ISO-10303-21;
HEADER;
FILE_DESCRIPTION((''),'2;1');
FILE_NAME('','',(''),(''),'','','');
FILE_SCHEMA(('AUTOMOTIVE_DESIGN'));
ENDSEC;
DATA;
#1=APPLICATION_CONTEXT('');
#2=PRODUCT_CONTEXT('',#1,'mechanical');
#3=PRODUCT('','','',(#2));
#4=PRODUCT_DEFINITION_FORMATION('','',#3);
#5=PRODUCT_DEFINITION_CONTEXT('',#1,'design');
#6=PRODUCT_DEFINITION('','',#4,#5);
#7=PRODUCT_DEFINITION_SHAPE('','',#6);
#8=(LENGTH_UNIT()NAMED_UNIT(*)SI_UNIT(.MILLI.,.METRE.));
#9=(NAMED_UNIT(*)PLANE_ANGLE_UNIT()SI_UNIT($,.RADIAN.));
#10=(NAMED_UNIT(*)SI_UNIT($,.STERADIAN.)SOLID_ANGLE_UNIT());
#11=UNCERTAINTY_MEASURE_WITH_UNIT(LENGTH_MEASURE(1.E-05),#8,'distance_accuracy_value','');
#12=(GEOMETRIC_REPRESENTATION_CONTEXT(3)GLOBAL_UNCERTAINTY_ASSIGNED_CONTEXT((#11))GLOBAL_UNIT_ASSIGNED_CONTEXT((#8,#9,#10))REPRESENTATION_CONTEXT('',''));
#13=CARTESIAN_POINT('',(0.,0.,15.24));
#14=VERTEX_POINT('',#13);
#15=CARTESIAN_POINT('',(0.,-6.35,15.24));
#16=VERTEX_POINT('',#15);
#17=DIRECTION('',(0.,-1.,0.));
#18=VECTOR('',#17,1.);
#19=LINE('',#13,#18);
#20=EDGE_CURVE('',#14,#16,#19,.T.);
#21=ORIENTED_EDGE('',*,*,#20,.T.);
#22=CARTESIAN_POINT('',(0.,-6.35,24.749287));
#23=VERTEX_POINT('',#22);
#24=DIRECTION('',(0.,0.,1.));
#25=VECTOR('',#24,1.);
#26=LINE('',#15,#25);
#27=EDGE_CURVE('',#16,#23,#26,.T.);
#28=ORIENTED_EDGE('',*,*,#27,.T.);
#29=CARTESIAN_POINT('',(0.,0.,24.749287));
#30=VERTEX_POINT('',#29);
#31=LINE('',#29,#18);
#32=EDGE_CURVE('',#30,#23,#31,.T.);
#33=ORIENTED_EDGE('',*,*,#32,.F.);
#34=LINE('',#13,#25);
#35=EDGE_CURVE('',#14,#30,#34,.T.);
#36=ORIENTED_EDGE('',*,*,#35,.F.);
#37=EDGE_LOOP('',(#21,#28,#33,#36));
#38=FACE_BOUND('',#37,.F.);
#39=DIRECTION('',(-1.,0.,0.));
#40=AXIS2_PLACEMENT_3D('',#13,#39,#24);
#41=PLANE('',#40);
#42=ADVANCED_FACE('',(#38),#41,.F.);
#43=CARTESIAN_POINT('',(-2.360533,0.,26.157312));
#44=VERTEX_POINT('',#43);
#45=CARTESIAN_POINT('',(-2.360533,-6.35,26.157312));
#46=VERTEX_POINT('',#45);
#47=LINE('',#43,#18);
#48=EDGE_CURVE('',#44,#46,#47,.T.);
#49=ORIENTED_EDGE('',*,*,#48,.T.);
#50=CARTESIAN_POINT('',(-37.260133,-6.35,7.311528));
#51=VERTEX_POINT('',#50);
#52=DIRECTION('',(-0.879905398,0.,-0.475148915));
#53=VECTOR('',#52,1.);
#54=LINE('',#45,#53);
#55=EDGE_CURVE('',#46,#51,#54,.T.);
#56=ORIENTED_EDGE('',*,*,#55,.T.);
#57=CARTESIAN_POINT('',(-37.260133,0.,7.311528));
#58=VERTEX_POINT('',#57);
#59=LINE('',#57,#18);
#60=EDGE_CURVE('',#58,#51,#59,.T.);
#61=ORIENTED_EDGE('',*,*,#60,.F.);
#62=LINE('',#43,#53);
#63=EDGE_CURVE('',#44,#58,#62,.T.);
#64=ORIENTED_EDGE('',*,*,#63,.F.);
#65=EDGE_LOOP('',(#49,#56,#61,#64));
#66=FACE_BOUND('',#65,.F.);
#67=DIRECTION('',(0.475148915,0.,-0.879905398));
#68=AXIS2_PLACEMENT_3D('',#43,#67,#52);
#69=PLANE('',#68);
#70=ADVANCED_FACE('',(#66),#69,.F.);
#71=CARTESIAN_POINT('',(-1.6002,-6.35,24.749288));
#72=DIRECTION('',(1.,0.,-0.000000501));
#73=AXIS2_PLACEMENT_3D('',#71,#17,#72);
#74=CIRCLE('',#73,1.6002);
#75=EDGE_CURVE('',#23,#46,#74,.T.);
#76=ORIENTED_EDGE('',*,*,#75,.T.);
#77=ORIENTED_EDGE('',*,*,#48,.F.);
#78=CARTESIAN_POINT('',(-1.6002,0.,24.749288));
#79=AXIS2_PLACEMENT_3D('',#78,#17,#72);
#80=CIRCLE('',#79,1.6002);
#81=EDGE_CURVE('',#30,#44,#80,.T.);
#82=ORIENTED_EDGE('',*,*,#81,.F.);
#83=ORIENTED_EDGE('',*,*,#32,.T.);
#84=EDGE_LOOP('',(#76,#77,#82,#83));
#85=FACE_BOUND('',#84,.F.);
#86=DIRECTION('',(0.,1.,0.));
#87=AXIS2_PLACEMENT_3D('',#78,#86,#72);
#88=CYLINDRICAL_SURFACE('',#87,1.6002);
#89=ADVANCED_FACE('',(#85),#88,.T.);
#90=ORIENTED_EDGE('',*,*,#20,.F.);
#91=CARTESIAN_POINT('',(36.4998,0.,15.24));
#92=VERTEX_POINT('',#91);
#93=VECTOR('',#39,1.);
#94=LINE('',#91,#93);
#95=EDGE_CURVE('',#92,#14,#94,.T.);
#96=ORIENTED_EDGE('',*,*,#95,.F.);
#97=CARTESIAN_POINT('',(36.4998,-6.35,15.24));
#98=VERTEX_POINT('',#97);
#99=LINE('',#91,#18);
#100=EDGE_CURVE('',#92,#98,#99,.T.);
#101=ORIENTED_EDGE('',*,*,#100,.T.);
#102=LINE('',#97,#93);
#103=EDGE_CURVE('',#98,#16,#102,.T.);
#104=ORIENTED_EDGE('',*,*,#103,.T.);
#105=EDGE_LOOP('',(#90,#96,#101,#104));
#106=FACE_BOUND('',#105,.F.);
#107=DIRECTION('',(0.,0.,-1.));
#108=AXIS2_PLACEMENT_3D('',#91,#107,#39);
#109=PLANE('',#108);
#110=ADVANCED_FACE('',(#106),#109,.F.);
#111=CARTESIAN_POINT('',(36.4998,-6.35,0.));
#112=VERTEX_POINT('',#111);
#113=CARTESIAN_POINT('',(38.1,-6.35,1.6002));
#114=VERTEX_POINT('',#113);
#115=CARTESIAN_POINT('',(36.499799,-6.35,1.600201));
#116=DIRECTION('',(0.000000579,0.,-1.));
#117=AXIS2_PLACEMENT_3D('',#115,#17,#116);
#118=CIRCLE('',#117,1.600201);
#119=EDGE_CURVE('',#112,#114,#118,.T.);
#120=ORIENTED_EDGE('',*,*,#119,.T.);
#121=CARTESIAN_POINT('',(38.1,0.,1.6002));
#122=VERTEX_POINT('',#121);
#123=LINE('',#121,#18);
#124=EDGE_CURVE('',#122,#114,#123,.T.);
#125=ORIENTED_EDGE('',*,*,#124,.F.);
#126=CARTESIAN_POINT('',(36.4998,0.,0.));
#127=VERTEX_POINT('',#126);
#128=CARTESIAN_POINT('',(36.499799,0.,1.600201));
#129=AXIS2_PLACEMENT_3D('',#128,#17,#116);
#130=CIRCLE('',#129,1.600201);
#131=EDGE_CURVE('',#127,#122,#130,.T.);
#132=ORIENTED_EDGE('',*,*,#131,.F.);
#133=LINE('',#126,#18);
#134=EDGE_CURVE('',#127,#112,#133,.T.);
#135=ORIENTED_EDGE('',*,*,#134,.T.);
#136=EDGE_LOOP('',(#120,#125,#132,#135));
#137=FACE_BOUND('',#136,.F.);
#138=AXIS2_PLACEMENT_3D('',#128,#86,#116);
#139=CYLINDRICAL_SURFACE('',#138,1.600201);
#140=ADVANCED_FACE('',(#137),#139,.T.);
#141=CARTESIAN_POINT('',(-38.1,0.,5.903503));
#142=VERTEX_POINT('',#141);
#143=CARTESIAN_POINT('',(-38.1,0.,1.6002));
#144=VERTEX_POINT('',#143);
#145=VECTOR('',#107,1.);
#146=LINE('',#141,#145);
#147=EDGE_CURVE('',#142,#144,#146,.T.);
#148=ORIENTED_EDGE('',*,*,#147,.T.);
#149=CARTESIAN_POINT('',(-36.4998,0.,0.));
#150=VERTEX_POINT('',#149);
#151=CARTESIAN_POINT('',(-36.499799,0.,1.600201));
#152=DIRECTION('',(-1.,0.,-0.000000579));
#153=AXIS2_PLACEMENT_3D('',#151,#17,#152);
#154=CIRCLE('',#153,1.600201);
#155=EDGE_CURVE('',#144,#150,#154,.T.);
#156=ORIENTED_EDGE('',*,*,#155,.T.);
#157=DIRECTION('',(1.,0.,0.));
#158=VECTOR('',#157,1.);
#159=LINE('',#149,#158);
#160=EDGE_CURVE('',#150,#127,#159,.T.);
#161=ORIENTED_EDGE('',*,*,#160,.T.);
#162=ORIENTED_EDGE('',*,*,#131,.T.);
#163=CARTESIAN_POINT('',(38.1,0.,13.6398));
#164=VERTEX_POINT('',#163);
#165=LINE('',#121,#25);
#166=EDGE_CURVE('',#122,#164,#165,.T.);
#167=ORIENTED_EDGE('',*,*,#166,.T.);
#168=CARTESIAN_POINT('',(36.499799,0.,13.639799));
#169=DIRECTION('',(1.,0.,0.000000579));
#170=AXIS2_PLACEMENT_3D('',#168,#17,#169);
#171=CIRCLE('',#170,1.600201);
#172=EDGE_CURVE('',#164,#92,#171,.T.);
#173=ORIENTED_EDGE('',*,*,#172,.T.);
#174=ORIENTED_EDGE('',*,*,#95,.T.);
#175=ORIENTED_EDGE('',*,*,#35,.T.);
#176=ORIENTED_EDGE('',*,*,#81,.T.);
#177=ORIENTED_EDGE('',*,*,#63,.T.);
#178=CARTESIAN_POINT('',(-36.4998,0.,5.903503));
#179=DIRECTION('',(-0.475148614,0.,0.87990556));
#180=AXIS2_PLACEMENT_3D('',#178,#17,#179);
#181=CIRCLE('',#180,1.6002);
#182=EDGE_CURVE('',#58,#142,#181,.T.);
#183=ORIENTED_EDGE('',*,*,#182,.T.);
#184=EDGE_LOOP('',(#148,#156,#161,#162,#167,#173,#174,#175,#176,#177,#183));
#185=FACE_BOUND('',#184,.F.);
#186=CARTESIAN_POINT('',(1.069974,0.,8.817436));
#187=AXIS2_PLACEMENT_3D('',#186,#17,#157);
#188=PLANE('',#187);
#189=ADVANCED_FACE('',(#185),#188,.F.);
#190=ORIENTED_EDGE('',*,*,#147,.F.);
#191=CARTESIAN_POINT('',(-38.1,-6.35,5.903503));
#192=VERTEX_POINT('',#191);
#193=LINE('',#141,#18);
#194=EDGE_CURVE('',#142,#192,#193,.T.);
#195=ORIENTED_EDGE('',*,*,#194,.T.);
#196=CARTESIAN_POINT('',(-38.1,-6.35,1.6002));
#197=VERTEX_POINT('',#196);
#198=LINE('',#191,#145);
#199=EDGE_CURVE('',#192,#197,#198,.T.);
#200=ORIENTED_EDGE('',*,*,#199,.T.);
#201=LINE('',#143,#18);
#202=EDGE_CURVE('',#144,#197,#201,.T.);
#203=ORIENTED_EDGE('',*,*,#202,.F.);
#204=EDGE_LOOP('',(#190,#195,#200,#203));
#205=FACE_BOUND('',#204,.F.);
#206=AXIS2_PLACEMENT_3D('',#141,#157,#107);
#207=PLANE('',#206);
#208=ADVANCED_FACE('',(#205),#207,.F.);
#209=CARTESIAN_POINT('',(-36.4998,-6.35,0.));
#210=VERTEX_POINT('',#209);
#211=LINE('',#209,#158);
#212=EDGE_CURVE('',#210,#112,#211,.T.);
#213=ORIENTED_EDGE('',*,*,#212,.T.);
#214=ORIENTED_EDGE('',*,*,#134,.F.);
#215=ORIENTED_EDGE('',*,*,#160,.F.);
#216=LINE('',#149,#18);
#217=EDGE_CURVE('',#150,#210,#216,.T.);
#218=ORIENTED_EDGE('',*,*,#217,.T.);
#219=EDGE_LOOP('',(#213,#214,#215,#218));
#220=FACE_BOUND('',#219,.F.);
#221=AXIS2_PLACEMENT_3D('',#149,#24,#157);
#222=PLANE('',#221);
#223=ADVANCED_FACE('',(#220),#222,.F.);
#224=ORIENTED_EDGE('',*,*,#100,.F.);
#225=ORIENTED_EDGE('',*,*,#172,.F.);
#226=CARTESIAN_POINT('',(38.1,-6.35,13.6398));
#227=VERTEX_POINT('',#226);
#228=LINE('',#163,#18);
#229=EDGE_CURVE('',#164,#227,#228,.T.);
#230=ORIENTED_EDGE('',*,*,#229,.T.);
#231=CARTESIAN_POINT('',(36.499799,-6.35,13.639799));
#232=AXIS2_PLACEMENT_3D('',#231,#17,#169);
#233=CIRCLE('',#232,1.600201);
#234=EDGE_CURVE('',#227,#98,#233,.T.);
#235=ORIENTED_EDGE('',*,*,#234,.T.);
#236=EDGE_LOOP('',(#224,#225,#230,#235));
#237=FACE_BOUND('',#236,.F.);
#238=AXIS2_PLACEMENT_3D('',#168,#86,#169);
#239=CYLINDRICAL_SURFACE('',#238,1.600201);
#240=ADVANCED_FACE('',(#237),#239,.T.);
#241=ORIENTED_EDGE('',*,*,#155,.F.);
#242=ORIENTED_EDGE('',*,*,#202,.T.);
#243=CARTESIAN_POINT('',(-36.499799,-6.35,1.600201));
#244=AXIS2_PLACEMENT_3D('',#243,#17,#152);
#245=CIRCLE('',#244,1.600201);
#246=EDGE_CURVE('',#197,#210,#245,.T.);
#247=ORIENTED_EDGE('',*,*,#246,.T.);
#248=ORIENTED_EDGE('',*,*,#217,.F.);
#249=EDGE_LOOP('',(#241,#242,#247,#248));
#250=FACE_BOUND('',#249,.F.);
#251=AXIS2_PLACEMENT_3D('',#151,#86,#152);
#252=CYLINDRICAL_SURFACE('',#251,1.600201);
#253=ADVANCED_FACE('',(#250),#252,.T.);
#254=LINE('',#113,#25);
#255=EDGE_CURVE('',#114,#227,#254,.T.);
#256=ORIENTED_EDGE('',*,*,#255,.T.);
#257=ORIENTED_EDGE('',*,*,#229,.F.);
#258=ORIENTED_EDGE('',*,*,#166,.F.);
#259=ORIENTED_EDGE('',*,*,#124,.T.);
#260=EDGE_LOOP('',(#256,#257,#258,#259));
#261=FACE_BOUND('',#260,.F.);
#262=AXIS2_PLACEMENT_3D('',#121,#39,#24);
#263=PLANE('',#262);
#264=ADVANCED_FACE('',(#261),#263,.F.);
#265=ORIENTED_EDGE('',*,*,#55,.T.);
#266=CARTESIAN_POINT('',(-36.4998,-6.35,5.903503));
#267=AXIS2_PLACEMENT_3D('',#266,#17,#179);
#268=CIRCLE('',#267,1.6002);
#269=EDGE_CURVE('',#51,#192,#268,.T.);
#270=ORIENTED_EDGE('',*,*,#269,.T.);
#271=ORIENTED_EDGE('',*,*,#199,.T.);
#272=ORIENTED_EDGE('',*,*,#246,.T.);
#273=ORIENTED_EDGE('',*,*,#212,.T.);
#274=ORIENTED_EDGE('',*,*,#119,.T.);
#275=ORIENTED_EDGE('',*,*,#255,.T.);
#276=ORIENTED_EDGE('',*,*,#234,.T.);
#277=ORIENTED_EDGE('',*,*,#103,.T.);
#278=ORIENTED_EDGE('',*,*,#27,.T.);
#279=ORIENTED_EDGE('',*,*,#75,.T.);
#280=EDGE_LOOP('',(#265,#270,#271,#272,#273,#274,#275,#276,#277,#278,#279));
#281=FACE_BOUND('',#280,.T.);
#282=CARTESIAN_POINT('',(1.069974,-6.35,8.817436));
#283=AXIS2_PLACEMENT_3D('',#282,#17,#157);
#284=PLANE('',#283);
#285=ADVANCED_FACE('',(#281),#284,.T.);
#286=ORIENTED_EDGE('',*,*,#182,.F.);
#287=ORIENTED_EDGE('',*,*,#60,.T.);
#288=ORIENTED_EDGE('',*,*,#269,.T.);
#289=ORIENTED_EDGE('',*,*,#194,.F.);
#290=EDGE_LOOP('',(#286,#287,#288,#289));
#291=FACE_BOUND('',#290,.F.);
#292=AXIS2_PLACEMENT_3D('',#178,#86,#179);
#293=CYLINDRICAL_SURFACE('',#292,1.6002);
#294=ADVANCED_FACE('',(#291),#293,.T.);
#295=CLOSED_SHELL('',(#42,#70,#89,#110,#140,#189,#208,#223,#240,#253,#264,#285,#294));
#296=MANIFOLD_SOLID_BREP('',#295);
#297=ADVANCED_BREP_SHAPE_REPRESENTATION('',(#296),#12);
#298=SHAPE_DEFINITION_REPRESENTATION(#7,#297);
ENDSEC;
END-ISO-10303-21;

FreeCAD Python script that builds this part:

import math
import FreeCAD as App
import Part
import Sketcher

V = App.Vector
Q = App.Units.Quantity

doc = App.newDocument("Part")
params = doc.addObject("Spreadsheet::Sheet", "Params")
for row, (alias, value) in enumerate([
    ("sketch1_radius", "0.063 in"),
    ("pad1_length", "0.25 in"),
], start=1):
    params.set(f"A{row}", alias)
    params.set(f"B{row}", "=" + value)
    params.setAlias(f"B{row}", alias)

body = doc.addObject("PartDesign::Body", "Body")

sketch1 = body.newObject("Sketcher::SketchObject", "Sketch")
sketch1.AttachmentSupport = (doc.getObject("XZ_Plane"), [""])
sketch1.MapMode = "FlatFace"
sketch1.addGeometry(Part.ArcOfCircle(Part.Circle(V(-36.5, 1.6, 0), V(0, 0, 1), 1.6), math.radians(-180), math.radians(-90)), False)
sketch1.addGeometry(Part.LineSegment(V(-36.5, 0, 0), V(36.5, 0, 0)), False)
sketch1.addGeometry(Part.ArcOfCircle(Part.Circle(V(36.5, 1.6, 0), V(0, 0, 1), 1.6), math.radians(-90), math.radians(0)), False)
sketch1.addGeometry(Part.LineSegment(V(38.1, 1.6, 0), V(38.1, 13.6, 0)), False)
sketch1.addGeometry(Part.ArcOfCircle(Part.Circle(V(36.5, 13.6, 0), V(0, 0, 1), 1.6), math.radians(0), math.radians(90)), False)
sketch1.addGeometry(Part.LineSegment(V(36.5, 15.2, 0), V(0, 15.2, 0)), False)
sketch1.addGeometry(Part.LineSegment(V(0, 15.2, 0), V(0, 24.7, 0)), False)
sketch1.addGeometry(Part.ArcOfCircle(Part.Circle(V(-1.6, 24.7, 0), V(0, 0, 1), 1.6), math.radians(0), math.radians(118)), False)
sketch1.addGeometry(Part.LineSegment(V(-2.4, 26.2, 0), V(-37.3, 7.3, 0)), False)
sketch1.addGeometry(Part.ArcOfCircle(Part.Circle(V(-36.5, 5.9, 0), V(0, 0, 1), 1.6), math.radians(118), math.radians(180)), False)
sketch1.addGeometry(Part.LineSegment(V(-38.1, 5.9, 0), V(-38.1, 1.6, 0)), False)
sketch1.addConstraint(Sketcher.Constraint("Tangent", 0, 2, 1, 1))
sketch1.addConstraint(Sketcher.Constraint("Tangent", 1, 2, 2, 1))
sketch1.addConstraint(Sketcher.Constraint("Tangent", 2, 2, 3, 1))
sketch1.addConstraint(Sketcher.Constraint("Tangent", 3, 2, 4, 1))
sketch1.addConstraint(Sketcher.Constraint("Tangent", 4, 2, 5, 1))
sketch1.addConstraint(Sketcher.Constraint("Coincident", 5, 2, 6, 1))
sketch1.addConstraint(Sketcher.Constraint("Tangent", 6, 2, 7, 1))
sketch1.addConstraint(Sketcher.Constraint("Tangent", 7, 2, 8, 1))
sketch1.addConstraint(Sketcher.Constraint("Tangent", 8, 2, 9, 1))
sketch1.addConstraint(Sketcher.Constraint("Tangent", 9, 2, 10, 1))
sketch1.addConstraint(Sketcher.Constraint("Tangent", 10, 2, 0, 1))
sketch1.addConstraint(Sketcher.Constraint("Horizontal", 1))
sketch1.addConstraint(Sketcher.Constraint("Vertical", 3))
sketch1.addConstraint(Sketcher.Constraint("Horizontal", 5))
sketch1.addConstraint(Sketcher.Constraint("Vertical", 6))
sketch1.addConstraint(Sketcher.Constraint("Vertical", 10))
sketch1.addConstraint(Sketcher.Constraint("Equal", 0, 2))
sketch1.addConstraint(Sketcher.Constraint("Equal", 2, 4))
sketch1.addConstraint(Sketcher.Constraint("Equal", 4, 7))
sketch1.addConstraint(Sketcher.Constraint("Equal", 7, 9))
sketch1.addConstraint(Sketcher.Constraint("Symmetric", 0, 2, 1, 2, -1, 1))
sketch1.addConstraint(Sketcher.Constraint("PointOnObject", 5, 2, -2))
sketch1.addConstraint(Sketcher.Constraint("Radius", 0, Q("0.063 in")))
sketch1.addConstraint(Sketcher.Constraint("DistanceX", -1, 1, 2, 2, Q("1.5 in")))
sketch1.addConstraint(Sketcher.Constraint("DistanceY", -1, 1, 4, 2, Q("0.6 in")))
sketch1.addConstraint(Sketcher.Constraint("Distance", 8, Q("39.6629 mm")))
sketch1.addConstraint(Sketcher.Constraint("DistanceY", 6, 1, 6, 2, Q("9.509287 mm")))
sketch1.setExpression("Constraints[22]", "Params.sketch1_radius")
pad1 = body.newObject("PartDesign::Pad", "Pad")
pad1.Profile = sketch1
pad1.setExpression("Length", "Params.pad1_length")

doc.recompute()
